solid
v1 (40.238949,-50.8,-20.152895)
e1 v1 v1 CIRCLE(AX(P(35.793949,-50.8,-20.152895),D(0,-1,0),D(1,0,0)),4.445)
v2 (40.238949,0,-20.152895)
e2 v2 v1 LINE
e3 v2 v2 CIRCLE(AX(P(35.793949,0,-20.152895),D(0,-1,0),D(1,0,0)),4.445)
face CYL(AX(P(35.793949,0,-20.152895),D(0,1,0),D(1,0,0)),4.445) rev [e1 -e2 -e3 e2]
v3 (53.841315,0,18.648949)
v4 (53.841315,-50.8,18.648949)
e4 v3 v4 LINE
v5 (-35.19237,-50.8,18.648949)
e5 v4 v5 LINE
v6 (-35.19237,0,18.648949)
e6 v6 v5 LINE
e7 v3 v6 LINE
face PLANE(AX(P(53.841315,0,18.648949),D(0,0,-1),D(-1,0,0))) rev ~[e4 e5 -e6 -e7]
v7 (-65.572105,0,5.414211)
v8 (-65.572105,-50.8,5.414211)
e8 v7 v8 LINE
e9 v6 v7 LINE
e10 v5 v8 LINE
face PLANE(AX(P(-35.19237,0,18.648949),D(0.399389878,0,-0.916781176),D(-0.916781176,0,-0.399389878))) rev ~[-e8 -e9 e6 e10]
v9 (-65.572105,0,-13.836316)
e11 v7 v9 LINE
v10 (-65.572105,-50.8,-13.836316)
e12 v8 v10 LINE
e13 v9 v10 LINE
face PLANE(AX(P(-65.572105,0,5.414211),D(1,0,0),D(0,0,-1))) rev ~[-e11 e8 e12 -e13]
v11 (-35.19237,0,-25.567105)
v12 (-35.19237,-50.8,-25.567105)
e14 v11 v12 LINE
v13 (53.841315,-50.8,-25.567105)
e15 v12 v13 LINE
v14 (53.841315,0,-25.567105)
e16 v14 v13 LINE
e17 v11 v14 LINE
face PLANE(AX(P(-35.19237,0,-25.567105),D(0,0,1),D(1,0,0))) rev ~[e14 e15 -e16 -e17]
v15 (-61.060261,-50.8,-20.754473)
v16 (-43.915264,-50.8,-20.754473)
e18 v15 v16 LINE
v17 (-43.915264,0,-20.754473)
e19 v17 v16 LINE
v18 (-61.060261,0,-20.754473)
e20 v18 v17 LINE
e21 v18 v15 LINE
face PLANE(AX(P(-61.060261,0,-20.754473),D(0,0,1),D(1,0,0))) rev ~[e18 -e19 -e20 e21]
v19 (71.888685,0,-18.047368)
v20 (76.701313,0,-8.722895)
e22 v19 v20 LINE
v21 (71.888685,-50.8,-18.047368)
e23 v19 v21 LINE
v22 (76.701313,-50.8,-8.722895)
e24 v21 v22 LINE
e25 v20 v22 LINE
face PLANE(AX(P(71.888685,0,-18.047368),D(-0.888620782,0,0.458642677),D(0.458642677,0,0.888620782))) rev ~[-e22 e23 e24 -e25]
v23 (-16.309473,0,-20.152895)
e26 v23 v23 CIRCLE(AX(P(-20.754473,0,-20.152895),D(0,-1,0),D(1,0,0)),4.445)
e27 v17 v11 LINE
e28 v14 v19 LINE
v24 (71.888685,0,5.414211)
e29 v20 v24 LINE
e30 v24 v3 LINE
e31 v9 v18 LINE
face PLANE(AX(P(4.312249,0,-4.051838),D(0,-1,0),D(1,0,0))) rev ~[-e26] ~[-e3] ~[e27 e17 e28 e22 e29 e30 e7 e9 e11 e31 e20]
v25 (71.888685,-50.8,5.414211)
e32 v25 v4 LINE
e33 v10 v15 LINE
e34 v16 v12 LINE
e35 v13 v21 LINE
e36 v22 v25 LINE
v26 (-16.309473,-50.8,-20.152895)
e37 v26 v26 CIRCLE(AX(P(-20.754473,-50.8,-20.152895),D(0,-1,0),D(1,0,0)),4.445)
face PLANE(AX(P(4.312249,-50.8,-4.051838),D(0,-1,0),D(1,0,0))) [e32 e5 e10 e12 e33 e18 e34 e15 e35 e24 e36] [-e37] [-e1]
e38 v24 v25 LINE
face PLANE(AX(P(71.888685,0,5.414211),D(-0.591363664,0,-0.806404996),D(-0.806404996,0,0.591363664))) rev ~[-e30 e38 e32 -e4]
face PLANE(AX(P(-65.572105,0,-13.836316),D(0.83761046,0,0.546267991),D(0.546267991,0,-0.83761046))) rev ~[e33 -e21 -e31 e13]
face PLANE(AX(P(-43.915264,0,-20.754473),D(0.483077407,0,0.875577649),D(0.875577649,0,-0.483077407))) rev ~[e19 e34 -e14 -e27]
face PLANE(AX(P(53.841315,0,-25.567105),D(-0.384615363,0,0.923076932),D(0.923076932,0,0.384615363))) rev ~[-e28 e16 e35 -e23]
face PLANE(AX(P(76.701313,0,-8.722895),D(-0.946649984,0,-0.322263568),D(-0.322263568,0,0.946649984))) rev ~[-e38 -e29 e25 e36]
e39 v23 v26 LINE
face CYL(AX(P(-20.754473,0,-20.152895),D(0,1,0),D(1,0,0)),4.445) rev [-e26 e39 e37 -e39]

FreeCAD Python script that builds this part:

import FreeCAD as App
import Part
import Sketcher
from FreeCAD import Vector
Q = App.Units.Quantity


def add_polygon(sketch, points):
    """Adds a closed chain of lines whose ends are joined by coincident constraints."""
    first, n = sketch.GeometryCount, len(points)
    for a, b in zip(points, points[1:] + points[:1]):
        sketch.addGeometry(Part.LineSegment(App.Vector(*a, 0), App.Vector(*b, 0)), False)
    for i in range(n):
        sketch.addConstraint(Sketcher.Constraint("Coincident", first + i, 2, first + (i + 1) % n, 1))

doc = App.newDocument("Part")
body = doc.addObject("PartDesign::Body", "Body")

# Sketch on XZ plane
sketch1 = body.newObject("Sketcher::SketchObject", "Sketch")
sketch1.AttachmentSupport = (doc.getObject("XZ_Plane"), [""])
sketch1.MapMode = "FlatFace"
add_polygon(sketch1, [(53.8, 18.6), (-35.2, 18.6), (-65.6, 5.4), (-65.6, -13.8), (-61.1, -20.8), (-43.9, -20.8), (-35.2, -25.6), (53.8, -25.6), (71.9, -18), (76.7, -8.7), (71.9, 5.4)])  # lines 0-10
sketch1.addGeometry(Part.Circle(Vector(-20.8, -20.2, 0), Vector(0, 0, 1), 4.4), False)  # 11
sketch1.addGeometry(Part.Circle(Vector(35.8, -20.2, 0), Vector(0, 0, 1), 4.4), False)  # 12
sketch1.addConstraint([
    Sketcher.Constraint("Horizontal", 0),
    Sketcher.Constraint("Vertical", 2),
    Sketcher.Constraint("Horizontal", 4),
    Sketcher.Constraint("Horizontal", 6),
    Sketcher.Constraint("Equal", 11, 12),
    Sketcher.Constraint("Horizontal", 11, 3, 12, 3),
    Sketcher.Constraint("Horizontal", 1, 2, 9, 2),
    Sketcher.Constraint("Vertical", 0, 2, 5, 2),
    Sketcher.Constraint("Vertical", 7, 2, 9, 2),
    Sketcher.Constraint("Vertical", 6, 2, 10, 2),
    Sketcher.Constraint("Diameter", 11, Q("0.35 in")),
    Sketcher.Constraint("DistanceX", 6, 2, 8, 2, Q("0.8999999 in")),
    Sketcher.Constraint("DistanceX", 4, 1, 4, 2, Q("0.6749999 in")),
    Sketcher.Constraint("DistanceY", 12, 3, 8, 2, Q("0.45 in")),
    Sketcher.Constraint("Distance", 1, Q("33.13739 mm")),
    Sketcher.Constraint("DistanceX", 0, 2, 0, 1, Q("89.033685 mm")),
    Sketcher.Constraint("DistanceY", 2, 2, 2, 1, Q("19.250527 mm")),
    Sketcher.Constraint("DistanceX", -1, 1, 12, 3, Q("35.793949 mm")),
    Sketcher.Constraint("DistanceX", 0, 2, -1, 1, Q("35.19237 mm")),
    Sketcher.Constraint("DistanceY", -1, 1, 0, 2, Q("18.648949 mm")),
    Sketcher.Constraint("DistanceY", -1, 1, 1, 2, Q("5.414211 mm")),
    Sketcher.Constraint("DistanceX", 3, 2, -1, 1, Q("61.060261 mm")),
    Sketcher.Constraint("DistanceX", 1, 2, 11, 3, Q("44.817632 mm")),
    Sketcher.Constraint("DistanceY", 11, 3, 2, 2, Q("6.316579 mm")),
    Sketcher.Constraint("DistanceY", 5, 2, 11, 3, Q("5.41421 mm")),
    Sketcher.Constraint("DistanceX", 6, 2, 7, 2, Q("18.04737 mm")),
    Sketcher.Constraint("DistanceY", 7, 2, 9, 2, Q("23.461579 mm")),
    Sketcher.Constraint("Distance", 3, Q("8.259397 mm")),
])
pad1 = body.newObject("PartDesign::Pad", "Pad")
pad1.Profile = sketch1
pad1.Length = Q("2 in")

doc.recompute()
